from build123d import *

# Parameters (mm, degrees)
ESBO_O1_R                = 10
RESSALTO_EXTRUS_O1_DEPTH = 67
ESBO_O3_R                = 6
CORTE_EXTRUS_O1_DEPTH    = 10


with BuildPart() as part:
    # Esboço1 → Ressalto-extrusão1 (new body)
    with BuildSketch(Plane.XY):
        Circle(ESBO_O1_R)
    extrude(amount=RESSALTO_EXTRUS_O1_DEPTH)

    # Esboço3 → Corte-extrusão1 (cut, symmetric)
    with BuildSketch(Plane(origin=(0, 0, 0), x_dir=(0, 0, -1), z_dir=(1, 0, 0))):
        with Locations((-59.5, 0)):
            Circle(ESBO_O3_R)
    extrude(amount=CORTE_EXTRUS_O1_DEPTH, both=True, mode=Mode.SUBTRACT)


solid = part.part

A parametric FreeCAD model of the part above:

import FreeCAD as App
import Part
import Sketcher

V = App.Vector
Q = App.Units.Quantity

doc = App.newDocument("Part")
body = doc.addObject("PartDesign::Body", "Body")

sketch1 = doc.addObject("Sketcher::SketchObject", "Sketch")
body.addObject(sketch1)
sketch1.AttachmentSupport = (doc.XY_Plane, [""])
sketch1.MapMode = "FlatFace"
sketch1.addGeometry(Part.Circle(V(0, 0, 0), V(0, 0, 1), 10), False)
sketch1.addConstraint([
    Sketcher.Constraint("Coincident", 0, 3, -1, 1),
    Sketcher.Constraint("Diameter", 0, Q("20 mm")),
])
pad1 = doc.addObject("PartDesign::Pad", "Pad")
body.addObject(pad1)
pad1.Profile = sketch1
pad1.Length = 67

sketch2 = doc.addObject("Sketcher::SketchObject", "Sketch001")
body.addObject(sketch2)
sketch2.AttachmentSupport = (doc.YZ_Plane, [""])
sketch2.MapMode = "FlatFace"
sketch2.addGeometry(Part.Circle(V(0, 60, 0), V(0, 0, 1), 6), False)
sketch2.addConstraint([
    Sketcher.Constraint("PointOnObject", 0, 3, -2),
    Sketcher.Constraint("Diameter", 0, Q("12 mm")),
    Sketcher.Constraint("DistanceY", -1, 1, 0, 3, Q("59.5 mm")),
])
pocket1 = doc.addObject("PartDesign::Pocket", "Pocket")
body.addObject(pocket1)
pocket1.Profile = sketch2
pocket1.Length = 20
pocket1.Midplane = True

doc.recompute()
